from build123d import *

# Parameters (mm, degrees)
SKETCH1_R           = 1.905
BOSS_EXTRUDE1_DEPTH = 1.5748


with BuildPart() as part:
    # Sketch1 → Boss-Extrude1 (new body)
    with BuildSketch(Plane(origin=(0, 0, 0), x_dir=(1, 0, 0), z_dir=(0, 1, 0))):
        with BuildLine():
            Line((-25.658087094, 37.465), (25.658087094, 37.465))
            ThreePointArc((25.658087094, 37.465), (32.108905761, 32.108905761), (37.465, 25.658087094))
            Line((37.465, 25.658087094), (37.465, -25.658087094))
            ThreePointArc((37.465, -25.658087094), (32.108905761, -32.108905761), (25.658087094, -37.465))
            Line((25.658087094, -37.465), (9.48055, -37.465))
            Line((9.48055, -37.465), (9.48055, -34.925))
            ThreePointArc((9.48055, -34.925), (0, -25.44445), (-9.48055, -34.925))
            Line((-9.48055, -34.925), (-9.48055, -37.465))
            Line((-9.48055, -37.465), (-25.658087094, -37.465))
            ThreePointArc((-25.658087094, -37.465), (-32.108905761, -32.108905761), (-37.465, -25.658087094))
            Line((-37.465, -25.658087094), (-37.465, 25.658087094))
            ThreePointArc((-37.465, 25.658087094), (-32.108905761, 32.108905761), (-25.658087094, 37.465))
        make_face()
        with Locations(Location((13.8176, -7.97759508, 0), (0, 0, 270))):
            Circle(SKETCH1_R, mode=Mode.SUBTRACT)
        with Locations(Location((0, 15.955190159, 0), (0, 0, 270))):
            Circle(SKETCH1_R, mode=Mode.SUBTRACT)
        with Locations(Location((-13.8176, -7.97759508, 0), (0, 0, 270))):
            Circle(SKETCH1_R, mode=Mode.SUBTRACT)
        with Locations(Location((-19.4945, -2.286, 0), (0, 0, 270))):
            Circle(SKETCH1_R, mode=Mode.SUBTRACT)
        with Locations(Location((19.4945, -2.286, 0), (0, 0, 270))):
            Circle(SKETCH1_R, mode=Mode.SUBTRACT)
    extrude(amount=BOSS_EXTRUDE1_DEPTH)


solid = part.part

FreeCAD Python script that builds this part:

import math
import FreeCAD as App
import Part
import Sketcher
from FreeCAD import Vector
Q = App.Units.Quantity

doc = App.newDocument("Part")
body = doc.addObject("PartDesign::Body", "Body")

sketch1 = body.newObject("Sketcher::SketchObject", "Sketch")
sketch1.AttachmentSupport = (doc.getObject("XZ_Plane"), [""])
sketch1.MapMode = "FlatFace"
sketch1.addGeometry([
    Part.LineSegment(Vector(25.7, -37.5, 0), Vector(-25.7, -37.5, 0)),
    Part.ArcOfCircle(Part.Circle(Vector(0, 0, 0), Vector(0, 0, 1), 45.4), math.radians(-146), math.radians(-124)),
    Part.LineSegment(Vector(-37.5, -25.7, 0), Vector(-37.5, 25.7, 0)),
    Part.ArcOfCircle(Part.Circle(Vector(0, 0, 0), Vector(0, 0, 1), 45.4), math.radians(124), math.radians(146)),
    Part.LineSegment(Vector(-25.7, 37.5, 0), Vector(-9.5, 37.5, 0)),
    Part.LineSegment(Vector(-9.5, 37.5, 0), Vector(-9.5, 34.9, 0)),
    Part.ArcOfCircle(Part.Circle(Vector(0, 34.9, 0), Vector(0, 0, 1), 9.5), math.radians(180), math.radians(360)),
    Part.LineSegment(Vector(9.5, 34.9, 0), Vector(9.5, 37.5, 0)),
    Part.LineSegment(Vector(9.5, 37.5, 0), Vector(25.7, 37.5, 0)),
    Part.ArcOfCircle(Part.Circle(Vector(0, 0, 0), Vector(0, 0, 1), 45.4), math.radians(34), math.radians(56)),
    Part.LineSegment(Vector(37.5, 25.7, 0), Vector(37.5, -25.7, 0)),
    Part.ArcOfCircle(Part.Circle(Vector(0, 0, 0), Vector(0, 0, 1), 45.4), math.radians(-56), math.radians(-34)),
    Part.Circle(Vector(13.8, 8, 0), Vector(0, 0, 1), 1.9),
    Part.Circle(Vector(19.5, 2.3, 0), Vector(0, 0, 1), 1.9),
    Part.Circle(Vector(-13.8, 8, 0), Vector(0, 0, 1), 1.9),
    Part.Circle(Vector(-19.5, 2.3, 0), Vector(0, 0, 1), 1.9),
    Part.Circle(Vector(0, -16, 0), Vector(0, 0, 1), 1.9),
], False)
sketch1.addConstraint([
    Sketcher.Constraint("Coincident", 0, 2, 1, 2),
    Sketcher.Constraint("Coincident", 1, 1, 2, 1),
    Sketcher.Constraint("Coincident", 2, 2, 3, 2),
    Sketcher.Constraint("Coincident", 3, 1, 4, 1),
    Sketcher.Constraint("Coincident", 4, 2, 5, 1),
    Sketcher.Constraint("Tangent", 5, 2, 6, 1),
    Sketcher.Constraint("Tangent", 6, 2, 7, 1),
    Sketcher.Constraint("Coincident", 7, 2, 8, 1),
    Sketcher.Constraint("Coincident", 8, 2, 9, 2),
    Sketcher.Constraint("Coincident", 9, 1, 10, 1),
    Sketcher.Constraint("Coincident", 10, 2, 11, 2),
    Sketcher.Constraint("Coincident", 11, 1, 0, 1),
    Sketcher.Constraint("Horizontal", 0),
    Sketcher.Constraint("Vertical", 2),
    Sketcher.Constraint("Horizontal", 4),
    Sketcher.Constraint("Vertical", 5),
    Sketcher.Constraint("Vertical", 7),
    Sketcher.Constraint("Horizontal", 8),
    Sketcher.Constraint("Vertical", 10),
    Sketcher.Constraint("Coincident", 1, 3, -1, 1),
    Sketcher.Constraint("Coincident", 3, 3, -1, 1),
    Sketcher.Constraint("Coincident", 9, 3, -1, 1),
    Sketcher.Constraint("Coincident", 11, 3, -1, 1),
    Sketcher.Constraint("Equal", 1, 3),
    Sketcher.Constraint("Equal", 3, 9),
    Sketcher.Constraint("Equal", 9, 11),
    Sketcher.Constraint("Equal", 12, 13),
    Sketcher.Constraint("Equal", 13, 14),
    Sketcher.Constraint("Equal", 14, 15),
    Sketcher.Constraint("Equal", 15, 16),
    Sketcher.Constraint("Symmetric", 12, 3, 14, 3, -2),
    Sketcher.Constraint("Symmetric", 13, 3, 15, 3, -2),
    Sketcher.Constraint("Symmetric", 4, 2, 7, 2, -2),
    Sketcher.Constraint("PointOnObject", 16, 3, -2),
    Sketcher.Constraint("Horizontal", 2, 2, 9, 1),
    Sketcher.Constraint("Vertical", 0, 2, 3, 1),
    Sketcher.Constraint("Equal", 0, 2),
    Sketcher.Constraint("Diameter", 12, Q("0.15 in")),
    Sketcher.Constraint("DistanceY", 5, 2, 5, 1, Q("0.1 in")),
    Sketcher.Constraint("DistanceY", -1, 1, 13, 3, Q("0.09 in")),
    Sketcher.Constraint("DistanceY", -1, 1, 6, 3, Q("1.375 in")),
    Sketcher.Constraint("DistanceX", -1, 1, 12, 3, Q("0.544 in")),
    Sketcher.Constraint("Radius", 1, Q("45.40885 mm")),
    Sketcher.Constraint("Radius", 6, Q("9.48055 mm")),
    Sketcher.Constraint("DistanceX", -1, 1, 13, 3, Q("0.7675 in")),
    Sketcher.Constraint("DistanceY", 16, 3, -1, 1, Q("15.95519 mm")),
    Sketcher.Constraint("DistanceY", -1, 1, 12, 3, Q("7.977595 mm")),
])
pad1 = body.newObject("PartDesign::Pad", "Pad")
pad1.Profile = sketch1
pad1.Length = Q("0.062 in")
pad1.Reversed = True

doc.recompute()
